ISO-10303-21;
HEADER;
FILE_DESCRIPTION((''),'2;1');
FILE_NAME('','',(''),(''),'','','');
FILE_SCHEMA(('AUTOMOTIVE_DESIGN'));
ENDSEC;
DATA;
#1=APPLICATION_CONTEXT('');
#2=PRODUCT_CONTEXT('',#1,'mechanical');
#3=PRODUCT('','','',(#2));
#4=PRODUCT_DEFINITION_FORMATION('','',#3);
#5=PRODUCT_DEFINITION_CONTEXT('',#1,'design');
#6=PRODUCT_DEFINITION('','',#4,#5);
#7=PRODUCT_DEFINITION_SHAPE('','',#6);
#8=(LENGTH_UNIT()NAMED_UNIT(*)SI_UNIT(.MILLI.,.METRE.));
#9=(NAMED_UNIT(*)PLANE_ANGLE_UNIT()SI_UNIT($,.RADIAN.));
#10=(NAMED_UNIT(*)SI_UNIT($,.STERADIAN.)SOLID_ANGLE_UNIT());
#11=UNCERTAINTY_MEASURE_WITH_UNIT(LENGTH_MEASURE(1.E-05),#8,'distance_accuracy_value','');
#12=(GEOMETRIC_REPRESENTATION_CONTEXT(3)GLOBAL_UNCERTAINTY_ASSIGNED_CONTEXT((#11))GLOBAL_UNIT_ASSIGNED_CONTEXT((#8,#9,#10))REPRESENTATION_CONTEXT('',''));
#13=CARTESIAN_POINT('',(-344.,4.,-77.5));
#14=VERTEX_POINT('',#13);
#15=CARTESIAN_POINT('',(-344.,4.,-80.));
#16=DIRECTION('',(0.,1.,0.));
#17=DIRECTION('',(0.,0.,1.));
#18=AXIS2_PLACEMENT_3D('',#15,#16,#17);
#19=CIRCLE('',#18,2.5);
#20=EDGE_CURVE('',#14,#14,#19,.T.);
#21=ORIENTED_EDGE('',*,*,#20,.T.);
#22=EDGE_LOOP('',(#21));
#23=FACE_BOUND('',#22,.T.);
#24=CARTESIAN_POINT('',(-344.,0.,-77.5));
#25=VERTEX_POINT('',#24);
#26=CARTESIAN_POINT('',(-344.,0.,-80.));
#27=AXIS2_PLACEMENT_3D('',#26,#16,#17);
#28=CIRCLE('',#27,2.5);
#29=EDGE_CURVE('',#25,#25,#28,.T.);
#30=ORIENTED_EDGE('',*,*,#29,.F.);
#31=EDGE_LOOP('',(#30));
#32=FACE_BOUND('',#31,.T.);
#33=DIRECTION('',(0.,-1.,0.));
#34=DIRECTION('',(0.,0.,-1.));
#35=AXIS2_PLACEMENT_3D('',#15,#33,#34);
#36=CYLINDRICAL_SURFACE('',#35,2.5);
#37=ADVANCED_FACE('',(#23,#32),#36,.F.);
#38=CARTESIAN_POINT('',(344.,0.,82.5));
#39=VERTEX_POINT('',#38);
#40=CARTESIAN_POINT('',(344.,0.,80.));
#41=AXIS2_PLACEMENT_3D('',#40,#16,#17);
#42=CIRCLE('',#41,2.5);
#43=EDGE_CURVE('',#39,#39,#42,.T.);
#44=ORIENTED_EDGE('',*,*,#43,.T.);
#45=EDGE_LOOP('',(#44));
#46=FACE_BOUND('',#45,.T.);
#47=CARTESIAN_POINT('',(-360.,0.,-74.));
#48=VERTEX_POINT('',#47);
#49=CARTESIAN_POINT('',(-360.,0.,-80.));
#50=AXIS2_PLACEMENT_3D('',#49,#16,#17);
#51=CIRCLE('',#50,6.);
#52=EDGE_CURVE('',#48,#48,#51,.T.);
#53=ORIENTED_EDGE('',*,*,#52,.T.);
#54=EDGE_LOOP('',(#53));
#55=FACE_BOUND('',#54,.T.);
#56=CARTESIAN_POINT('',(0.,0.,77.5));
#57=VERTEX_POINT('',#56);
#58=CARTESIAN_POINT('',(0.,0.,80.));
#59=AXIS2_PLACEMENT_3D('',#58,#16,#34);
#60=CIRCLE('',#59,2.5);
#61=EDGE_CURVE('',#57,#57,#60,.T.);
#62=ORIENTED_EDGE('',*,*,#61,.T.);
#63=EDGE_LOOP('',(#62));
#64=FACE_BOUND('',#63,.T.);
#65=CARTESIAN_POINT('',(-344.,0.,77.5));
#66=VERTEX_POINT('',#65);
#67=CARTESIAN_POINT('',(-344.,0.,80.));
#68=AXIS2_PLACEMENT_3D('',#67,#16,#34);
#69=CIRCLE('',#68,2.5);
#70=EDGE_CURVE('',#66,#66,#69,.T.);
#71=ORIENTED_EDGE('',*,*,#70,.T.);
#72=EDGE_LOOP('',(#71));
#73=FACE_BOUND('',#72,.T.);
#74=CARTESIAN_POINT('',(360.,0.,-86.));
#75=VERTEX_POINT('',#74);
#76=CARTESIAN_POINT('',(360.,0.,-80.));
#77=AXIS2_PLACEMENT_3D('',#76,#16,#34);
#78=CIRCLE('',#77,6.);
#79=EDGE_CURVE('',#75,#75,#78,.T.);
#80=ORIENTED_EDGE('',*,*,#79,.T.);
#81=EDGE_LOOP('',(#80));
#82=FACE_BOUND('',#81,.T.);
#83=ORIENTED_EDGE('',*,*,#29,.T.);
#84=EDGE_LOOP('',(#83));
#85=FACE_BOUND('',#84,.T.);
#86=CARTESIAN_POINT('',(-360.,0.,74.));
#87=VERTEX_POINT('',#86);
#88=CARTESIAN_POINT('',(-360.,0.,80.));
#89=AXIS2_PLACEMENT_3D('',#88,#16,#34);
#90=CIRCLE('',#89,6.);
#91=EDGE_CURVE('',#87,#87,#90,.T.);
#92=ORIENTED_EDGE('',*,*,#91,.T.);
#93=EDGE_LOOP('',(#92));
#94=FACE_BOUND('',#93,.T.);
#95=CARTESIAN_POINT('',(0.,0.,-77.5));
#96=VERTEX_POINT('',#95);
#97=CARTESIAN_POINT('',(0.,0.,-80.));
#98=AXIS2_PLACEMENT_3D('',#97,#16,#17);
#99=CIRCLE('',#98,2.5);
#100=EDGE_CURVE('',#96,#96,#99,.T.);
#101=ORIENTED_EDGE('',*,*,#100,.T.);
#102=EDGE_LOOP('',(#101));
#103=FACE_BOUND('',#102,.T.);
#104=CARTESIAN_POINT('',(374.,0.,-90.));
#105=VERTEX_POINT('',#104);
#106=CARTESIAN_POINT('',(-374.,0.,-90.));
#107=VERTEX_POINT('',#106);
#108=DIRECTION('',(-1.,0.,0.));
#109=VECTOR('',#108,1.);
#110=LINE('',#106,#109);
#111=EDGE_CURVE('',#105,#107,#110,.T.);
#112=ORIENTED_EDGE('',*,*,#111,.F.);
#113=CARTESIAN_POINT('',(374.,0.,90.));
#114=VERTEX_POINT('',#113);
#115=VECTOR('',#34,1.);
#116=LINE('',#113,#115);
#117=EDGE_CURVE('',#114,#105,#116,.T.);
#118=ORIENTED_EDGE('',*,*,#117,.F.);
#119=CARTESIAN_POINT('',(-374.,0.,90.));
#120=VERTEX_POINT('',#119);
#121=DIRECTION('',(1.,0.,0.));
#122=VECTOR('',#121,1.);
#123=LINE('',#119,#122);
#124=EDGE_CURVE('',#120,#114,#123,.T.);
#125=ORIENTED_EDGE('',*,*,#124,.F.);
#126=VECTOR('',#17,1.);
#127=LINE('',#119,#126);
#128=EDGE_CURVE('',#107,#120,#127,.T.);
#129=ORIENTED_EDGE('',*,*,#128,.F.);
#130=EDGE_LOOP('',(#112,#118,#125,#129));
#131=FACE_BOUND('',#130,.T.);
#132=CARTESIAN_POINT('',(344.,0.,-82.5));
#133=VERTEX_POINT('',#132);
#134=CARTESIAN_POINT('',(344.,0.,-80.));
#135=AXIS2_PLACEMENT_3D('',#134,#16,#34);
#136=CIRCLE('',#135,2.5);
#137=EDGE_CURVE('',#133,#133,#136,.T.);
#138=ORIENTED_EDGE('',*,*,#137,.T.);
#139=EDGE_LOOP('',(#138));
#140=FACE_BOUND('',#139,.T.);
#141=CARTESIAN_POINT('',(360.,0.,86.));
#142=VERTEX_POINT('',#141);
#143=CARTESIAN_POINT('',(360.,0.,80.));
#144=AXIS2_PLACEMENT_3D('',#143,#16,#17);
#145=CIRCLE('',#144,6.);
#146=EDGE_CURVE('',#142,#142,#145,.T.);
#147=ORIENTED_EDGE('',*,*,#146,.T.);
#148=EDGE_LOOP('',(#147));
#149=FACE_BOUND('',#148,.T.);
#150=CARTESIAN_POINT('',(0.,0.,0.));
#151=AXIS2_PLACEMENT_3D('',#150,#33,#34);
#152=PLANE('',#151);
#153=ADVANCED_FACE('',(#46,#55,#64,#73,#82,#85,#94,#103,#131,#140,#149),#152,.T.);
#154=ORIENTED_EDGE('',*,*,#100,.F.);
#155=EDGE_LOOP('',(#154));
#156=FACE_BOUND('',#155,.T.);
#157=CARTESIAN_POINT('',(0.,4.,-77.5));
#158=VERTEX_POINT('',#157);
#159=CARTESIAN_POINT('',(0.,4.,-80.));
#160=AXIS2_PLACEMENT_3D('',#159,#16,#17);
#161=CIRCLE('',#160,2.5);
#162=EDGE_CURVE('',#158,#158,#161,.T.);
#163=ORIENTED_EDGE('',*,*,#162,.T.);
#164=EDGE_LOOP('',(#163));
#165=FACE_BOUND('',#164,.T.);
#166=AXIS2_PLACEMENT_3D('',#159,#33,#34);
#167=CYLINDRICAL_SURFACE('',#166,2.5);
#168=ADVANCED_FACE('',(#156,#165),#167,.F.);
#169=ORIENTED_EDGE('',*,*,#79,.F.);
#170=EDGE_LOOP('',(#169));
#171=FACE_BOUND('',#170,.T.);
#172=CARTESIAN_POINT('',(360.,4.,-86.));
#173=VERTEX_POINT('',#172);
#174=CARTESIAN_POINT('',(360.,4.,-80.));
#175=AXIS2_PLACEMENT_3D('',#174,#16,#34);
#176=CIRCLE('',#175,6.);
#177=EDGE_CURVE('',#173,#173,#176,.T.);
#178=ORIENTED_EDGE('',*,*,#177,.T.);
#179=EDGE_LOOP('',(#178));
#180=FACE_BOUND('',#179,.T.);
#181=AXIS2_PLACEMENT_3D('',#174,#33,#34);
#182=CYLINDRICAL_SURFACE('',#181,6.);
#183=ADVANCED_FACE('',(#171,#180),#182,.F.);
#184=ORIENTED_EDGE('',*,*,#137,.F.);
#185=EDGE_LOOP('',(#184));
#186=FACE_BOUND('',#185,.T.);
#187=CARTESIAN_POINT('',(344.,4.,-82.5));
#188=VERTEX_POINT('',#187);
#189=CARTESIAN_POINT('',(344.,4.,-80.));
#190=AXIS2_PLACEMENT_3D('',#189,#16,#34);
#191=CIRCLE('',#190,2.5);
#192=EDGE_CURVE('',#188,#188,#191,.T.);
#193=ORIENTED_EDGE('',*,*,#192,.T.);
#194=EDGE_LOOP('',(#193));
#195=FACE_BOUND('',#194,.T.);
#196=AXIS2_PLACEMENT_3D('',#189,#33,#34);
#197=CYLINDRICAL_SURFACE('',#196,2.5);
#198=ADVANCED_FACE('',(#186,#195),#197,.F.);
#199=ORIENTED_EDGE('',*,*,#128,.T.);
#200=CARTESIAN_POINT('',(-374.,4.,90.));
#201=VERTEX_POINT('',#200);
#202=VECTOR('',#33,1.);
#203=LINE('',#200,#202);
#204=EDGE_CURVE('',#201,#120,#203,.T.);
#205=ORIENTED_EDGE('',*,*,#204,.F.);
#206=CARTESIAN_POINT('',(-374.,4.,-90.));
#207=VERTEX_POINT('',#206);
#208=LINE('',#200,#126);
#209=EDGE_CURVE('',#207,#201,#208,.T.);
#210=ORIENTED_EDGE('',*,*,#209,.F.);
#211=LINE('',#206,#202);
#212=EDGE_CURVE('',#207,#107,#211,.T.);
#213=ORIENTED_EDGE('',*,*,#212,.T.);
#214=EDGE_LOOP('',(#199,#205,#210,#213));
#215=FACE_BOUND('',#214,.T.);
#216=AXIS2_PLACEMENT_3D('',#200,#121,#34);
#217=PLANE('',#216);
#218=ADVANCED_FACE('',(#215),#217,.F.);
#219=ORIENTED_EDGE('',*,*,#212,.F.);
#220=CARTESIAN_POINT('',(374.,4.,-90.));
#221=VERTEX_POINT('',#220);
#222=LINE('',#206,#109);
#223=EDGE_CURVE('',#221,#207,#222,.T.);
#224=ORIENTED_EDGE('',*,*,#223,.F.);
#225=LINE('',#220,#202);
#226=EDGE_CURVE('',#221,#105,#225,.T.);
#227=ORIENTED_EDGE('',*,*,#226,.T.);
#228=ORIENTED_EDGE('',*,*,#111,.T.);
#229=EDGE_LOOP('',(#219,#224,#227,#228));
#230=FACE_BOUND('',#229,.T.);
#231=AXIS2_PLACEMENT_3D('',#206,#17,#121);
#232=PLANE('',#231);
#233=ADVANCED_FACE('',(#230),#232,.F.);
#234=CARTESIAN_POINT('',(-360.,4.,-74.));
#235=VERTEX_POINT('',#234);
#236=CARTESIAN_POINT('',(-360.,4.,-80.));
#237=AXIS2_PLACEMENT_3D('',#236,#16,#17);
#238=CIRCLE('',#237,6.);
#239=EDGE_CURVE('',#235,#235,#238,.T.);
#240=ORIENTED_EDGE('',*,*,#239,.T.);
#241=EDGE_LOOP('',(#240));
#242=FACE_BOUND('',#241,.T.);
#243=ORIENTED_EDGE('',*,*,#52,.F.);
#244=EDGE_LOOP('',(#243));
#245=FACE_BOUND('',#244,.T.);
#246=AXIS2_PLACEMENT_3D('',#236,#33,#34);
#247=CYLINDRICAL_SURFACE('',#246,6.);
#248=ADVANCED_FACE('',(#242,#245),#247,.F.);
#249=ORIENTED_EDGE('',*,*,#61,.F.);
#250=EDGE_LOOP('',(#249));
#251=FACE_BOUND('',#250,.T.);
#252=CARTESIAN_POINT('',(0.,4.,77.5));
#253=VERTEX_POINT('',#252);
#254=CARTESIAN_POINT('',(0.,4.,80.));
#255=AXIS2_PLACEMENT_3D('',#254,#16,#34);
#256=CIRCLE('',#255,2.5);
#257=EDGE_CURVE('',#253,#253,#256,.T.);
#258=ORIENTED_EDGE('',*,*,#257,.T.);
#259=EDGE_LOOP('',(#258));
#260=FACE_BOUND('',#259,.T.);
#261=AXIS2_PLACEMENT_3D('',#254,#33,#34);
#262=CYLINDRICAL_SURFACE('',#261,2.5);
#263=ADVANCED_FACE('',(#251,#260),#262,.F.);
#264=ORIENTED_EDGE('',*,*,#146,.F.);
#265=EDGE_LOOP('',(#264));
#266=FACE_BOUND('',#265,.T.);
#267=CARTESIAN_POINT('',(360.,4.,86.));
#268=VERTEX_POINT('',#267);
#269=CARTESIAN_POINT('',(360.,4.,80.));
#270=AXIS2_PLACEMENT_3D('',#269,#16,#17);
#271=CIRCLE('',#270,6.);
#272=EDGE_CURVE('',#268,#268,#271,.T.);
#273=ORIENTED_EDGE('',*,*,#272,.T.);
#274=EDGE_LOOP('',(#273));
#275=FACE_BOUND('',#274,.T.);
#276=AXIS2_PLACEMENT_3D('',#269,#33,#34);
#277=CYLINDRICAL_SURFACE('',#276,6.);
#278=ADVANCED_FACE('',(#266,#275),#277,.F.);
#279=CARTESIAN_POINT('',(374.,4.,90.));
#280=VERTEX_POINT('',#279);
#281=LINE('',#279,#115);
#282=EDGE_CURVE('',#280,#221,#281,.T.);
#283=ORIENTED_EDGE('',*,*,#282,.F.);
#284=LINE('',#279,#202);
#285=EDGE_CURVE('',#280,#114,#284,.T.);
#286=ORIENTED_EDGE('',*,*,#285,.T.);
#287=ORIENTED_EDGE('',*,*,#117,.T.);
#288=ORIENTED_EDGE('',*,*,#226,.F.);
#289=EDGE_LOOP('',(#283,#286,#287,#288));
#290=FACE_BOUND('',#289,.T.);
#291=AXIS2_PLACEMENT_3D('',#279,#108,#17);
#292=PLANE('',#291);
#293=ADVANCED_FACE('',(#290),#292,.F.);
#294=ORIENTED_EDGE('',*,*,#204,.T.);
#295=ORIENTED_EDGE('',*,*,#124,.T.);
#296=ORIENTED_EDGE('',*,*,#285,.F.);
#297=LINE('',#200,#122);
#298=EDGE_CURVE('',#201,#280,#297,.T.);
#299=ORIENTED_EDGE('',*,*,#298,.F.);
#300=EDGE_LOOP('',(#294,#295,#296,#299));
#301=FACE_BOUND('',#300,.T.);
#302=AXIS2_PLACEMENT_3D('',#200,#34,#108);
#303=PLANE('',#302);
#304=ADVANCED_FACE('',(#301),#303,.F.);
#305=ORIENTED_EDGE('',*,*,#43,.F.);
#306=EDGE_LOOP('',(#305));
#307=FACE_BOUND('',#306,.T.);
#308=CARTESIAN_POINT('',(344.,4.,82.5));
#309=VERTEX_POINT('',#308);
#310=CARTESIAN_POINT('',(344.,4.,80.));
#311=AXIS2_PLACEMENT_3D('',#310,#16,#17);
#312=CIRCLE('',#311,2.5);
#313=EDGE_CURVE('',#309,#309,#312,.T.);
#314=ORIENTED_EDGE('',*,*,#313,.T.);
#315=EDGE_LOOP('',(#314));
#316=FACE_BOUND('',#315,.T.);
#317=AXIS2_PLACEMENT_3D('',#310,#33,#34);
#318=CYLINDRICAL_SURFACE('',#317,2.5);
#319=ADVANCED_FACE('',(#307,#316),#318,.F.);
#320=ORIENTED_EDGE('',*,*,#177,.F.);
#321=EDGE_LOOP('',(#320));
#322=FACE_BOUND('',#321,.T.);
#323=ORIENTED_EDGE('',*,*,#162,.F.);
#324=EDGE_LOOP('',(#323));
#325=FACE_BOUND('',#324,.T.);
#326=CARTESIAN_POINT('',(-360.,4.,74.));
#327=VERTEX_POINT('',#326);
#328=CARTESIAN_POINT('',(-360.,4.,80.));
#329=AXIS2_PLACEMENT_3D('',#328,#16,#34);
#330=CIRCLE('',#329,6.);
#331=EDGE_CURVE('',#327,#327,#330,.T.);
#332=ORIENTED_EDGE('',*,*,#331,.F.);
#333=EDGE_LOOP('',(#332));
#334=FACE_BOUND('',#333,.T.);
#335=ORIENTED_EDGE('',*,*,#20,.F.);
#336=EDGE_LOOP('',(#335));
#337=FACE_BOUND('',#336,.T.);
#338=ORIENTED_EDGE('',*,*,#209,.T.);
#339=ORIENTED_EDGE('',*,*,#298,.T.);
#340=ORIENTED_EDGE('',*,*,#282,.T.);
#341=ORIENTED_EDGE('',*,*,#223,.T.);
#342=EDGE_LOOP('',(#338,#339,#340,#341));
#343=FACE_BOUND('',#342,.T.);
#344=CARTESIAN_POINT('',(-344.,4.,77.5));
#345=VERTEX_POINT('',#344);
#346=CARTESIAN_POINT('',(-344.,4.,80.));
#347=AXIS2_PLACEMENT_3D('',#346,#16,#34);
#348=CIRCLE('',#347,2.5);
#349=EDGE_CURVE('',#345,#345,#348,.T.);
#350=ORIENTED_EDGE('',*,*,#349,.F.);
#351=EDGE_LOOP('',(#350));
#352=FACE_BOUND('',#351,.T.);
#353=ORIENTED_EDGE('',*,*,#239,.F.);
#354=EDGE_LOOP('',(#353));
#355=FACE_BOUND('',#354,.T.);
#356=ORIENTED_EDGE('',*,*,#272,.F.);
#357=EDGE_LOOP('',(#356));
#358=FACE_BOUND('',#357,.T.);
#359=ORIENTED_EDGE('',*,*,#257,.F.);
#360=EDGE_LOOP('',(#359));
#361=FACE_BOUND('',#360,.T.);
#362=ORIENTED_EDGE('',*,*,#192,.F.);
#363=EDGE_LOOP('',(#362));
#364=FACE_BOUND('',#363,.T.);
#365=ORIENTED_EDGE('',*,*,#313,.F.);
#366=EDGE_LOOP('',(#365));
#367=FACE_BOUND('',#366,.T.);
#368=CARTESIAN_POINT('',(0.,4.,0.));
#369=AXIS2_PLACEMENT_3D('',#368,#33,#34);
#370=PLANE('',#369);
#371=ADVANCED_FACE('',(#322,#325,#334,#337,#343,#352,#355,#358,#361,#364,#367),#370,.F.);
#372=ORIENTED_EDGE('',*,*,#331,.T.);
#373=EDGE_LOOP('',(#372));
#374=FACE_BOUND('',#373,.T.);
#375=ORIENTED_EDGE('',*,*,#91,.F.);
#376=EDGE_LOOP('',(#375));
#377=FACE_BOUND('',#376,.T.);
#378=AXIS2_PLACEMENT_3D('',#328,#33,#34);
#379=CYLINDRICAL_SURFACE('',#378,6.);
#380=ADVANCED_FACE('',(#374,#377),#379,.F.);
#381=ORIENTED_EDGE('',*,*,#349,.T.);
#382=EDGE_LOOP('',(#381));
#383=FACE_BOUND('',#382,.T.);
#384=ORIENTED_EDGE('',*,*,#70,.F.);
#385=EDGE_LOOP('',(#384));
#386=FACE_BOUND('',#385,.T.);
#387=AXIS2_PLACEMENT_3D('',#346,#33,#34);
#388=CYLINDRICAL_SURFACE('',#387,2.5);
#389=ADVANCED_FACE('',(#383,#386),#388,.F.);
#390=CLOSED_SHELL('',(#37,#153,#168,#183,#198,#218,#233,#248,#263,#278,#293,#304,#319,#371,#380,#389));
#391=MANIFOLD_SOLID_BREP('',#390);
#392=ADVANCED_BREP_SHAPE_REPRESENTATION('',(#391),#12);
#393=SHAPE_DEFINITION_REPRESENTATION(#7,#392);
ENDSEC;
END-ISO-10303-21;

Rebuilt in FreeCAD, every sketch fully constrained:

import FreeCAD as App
import Part
import Sketcher

V = App.Vector

doc = App.newDocument("Part")
body = doc.addObject("PartDesign::Body", "Body")

sketch1 = doc.addObject("Sketcher::SketchObject", "Sketch")
body.addObject(sketch1)
sketch1.AttachmentSupport = (doc.XZ_Plane, [""])
sketch1.MapMode = "FlatFace"
sketch1.addGeometry([
    Part.LineSegment(V(-374, -90, 0), V(-374, 90, 0)),
    Part.LineSegment(V(-374, 90, 0), V(374, 90, 0)),
    Part.LineSegment(V(374, 90, 0), V(374, -90, 0)),
    Part.LineSegment(V(374, -90, 0), V(-374, -90, 0)),
    Part.Circle(V(-360, 80, 0), V(0, 0, 1), 6),
    Part.Circle(V(-344, 80, 0), V(0, 0, 1), 2.5),
    Part.Circle(V(0, 80, 0), V(0, 0, 1), 2.5),
    Part.Circle(V(344, 80, 0), V(0, 0, 1), 2.5),
    Part.Circle(V(360, 80, 0), V(0, 0, 1), 6),
    Part.Circle(V(-360, -80, 0), V(0, 0, 1), 6),
    Part.Circle(V(-344, -80, 0), V(0, 0, 1), 2.5),
    Part.Circle(V(0, -80, 0), V(0, 0, 1), 2.5),
    Part.Circle(V(344, -80, 0), V(0, 0, 1), 2.5),
    Part.Circle(V(360, -80, 0), V(0, 0, 1), 6),
], False)
sketch1.addConstraint([
    Sketcher.Constraint("Coincident", 0, 2, 1, 1),
    Sketcher.Constraint("Coincident", 1, 2, 2, 1),
    Sketcher.Constraint("Coincident", 2, 2, 3, 1),
    Sketcher.Constraint("Coincident", 3, 2, 0, 1),
    Sketcher.Constraint("Vertical", 0),
    Sketcher.Constraint("Horizontal", 1),
    Sketcher.Constraint("Vertical", 2),
    Sketcher.Constraint("Horizontal", 3),
    Sketcher.Constraint("Equal", 5, 6),
    Sketcher.Constraint("Equal", 6, 7),
    Sketcher.Constraint("Equal", 4, 8),
    Sketcher.Constraint("Equal", 8, 9),
    Sketcher.Constraint("Equal", 7, 10),
    Sketcher.Constraint("Equal", 10, 11),
    Sketcher.Constraint("Equal", 11, 12),
    Sketcher.Constraint("Equal", 9, 13),
    Sketcher.Constraint("Symmetric", 8, 3, 9, 3, -1, 1),
    Sketcher.Constraint("Symmetric", 7, 3, 10, 3, -1, 1),
    Sketcher.Constraint("Symmetric", 6, 3, 11, 3, -1, 1),
    Sketcher.Constraint("Symmetric", 5, 3, 12, 3, -1, 1),
    Sketcher.Constraint("Symmetric", 4, 3, 13, 3, -1, 1),
    Sketcher.Constraint("Symmetric", 0, 2, 2, 2, -1, 1),
    Sketcher.Constraint("Symmetric", 5, 3, 7, 3, -2),
    Sketcher.Constraint("Symmetric", 4, 3, 8, 3, -2),
    Sketcher.Constraint("PointOnObject", 6, 3, -2),
    Sketcher.Constraint("Horizontal", 4, 3, 5, 3),
    Sketcher.Constraint("Horizontal", 5, 3, 6, 3),
    Sketcher.Constraint("Diameter", 4, 12.0),
    Sketcher.Constraint("Diameter", 5, 5.0),
    Sketcher.Constraint("DistanceX", 1, 1, 1, 2, 748.0),
    Sketcher.Constraint("DistanceY", 0, 1, 0, 2, 180.0),
    Sketcher.Constraint("DistanceX", 4, 3, -1, 1, 360.0),
    Sketcher.Constraint("DistanceY", -1, 1, 4, 3, 80.0),
    Sketcher.Constraint("DistanceX", 5, 3, -1, 1, 344.0),
])
pad1 = doc.addObject("PartDesign::Pad", "Pad")
body.addObject(pad1)
pad1.Profile = sketch1
pad1.Length = 4
pad1.Reversed = True

doc.recompute()
